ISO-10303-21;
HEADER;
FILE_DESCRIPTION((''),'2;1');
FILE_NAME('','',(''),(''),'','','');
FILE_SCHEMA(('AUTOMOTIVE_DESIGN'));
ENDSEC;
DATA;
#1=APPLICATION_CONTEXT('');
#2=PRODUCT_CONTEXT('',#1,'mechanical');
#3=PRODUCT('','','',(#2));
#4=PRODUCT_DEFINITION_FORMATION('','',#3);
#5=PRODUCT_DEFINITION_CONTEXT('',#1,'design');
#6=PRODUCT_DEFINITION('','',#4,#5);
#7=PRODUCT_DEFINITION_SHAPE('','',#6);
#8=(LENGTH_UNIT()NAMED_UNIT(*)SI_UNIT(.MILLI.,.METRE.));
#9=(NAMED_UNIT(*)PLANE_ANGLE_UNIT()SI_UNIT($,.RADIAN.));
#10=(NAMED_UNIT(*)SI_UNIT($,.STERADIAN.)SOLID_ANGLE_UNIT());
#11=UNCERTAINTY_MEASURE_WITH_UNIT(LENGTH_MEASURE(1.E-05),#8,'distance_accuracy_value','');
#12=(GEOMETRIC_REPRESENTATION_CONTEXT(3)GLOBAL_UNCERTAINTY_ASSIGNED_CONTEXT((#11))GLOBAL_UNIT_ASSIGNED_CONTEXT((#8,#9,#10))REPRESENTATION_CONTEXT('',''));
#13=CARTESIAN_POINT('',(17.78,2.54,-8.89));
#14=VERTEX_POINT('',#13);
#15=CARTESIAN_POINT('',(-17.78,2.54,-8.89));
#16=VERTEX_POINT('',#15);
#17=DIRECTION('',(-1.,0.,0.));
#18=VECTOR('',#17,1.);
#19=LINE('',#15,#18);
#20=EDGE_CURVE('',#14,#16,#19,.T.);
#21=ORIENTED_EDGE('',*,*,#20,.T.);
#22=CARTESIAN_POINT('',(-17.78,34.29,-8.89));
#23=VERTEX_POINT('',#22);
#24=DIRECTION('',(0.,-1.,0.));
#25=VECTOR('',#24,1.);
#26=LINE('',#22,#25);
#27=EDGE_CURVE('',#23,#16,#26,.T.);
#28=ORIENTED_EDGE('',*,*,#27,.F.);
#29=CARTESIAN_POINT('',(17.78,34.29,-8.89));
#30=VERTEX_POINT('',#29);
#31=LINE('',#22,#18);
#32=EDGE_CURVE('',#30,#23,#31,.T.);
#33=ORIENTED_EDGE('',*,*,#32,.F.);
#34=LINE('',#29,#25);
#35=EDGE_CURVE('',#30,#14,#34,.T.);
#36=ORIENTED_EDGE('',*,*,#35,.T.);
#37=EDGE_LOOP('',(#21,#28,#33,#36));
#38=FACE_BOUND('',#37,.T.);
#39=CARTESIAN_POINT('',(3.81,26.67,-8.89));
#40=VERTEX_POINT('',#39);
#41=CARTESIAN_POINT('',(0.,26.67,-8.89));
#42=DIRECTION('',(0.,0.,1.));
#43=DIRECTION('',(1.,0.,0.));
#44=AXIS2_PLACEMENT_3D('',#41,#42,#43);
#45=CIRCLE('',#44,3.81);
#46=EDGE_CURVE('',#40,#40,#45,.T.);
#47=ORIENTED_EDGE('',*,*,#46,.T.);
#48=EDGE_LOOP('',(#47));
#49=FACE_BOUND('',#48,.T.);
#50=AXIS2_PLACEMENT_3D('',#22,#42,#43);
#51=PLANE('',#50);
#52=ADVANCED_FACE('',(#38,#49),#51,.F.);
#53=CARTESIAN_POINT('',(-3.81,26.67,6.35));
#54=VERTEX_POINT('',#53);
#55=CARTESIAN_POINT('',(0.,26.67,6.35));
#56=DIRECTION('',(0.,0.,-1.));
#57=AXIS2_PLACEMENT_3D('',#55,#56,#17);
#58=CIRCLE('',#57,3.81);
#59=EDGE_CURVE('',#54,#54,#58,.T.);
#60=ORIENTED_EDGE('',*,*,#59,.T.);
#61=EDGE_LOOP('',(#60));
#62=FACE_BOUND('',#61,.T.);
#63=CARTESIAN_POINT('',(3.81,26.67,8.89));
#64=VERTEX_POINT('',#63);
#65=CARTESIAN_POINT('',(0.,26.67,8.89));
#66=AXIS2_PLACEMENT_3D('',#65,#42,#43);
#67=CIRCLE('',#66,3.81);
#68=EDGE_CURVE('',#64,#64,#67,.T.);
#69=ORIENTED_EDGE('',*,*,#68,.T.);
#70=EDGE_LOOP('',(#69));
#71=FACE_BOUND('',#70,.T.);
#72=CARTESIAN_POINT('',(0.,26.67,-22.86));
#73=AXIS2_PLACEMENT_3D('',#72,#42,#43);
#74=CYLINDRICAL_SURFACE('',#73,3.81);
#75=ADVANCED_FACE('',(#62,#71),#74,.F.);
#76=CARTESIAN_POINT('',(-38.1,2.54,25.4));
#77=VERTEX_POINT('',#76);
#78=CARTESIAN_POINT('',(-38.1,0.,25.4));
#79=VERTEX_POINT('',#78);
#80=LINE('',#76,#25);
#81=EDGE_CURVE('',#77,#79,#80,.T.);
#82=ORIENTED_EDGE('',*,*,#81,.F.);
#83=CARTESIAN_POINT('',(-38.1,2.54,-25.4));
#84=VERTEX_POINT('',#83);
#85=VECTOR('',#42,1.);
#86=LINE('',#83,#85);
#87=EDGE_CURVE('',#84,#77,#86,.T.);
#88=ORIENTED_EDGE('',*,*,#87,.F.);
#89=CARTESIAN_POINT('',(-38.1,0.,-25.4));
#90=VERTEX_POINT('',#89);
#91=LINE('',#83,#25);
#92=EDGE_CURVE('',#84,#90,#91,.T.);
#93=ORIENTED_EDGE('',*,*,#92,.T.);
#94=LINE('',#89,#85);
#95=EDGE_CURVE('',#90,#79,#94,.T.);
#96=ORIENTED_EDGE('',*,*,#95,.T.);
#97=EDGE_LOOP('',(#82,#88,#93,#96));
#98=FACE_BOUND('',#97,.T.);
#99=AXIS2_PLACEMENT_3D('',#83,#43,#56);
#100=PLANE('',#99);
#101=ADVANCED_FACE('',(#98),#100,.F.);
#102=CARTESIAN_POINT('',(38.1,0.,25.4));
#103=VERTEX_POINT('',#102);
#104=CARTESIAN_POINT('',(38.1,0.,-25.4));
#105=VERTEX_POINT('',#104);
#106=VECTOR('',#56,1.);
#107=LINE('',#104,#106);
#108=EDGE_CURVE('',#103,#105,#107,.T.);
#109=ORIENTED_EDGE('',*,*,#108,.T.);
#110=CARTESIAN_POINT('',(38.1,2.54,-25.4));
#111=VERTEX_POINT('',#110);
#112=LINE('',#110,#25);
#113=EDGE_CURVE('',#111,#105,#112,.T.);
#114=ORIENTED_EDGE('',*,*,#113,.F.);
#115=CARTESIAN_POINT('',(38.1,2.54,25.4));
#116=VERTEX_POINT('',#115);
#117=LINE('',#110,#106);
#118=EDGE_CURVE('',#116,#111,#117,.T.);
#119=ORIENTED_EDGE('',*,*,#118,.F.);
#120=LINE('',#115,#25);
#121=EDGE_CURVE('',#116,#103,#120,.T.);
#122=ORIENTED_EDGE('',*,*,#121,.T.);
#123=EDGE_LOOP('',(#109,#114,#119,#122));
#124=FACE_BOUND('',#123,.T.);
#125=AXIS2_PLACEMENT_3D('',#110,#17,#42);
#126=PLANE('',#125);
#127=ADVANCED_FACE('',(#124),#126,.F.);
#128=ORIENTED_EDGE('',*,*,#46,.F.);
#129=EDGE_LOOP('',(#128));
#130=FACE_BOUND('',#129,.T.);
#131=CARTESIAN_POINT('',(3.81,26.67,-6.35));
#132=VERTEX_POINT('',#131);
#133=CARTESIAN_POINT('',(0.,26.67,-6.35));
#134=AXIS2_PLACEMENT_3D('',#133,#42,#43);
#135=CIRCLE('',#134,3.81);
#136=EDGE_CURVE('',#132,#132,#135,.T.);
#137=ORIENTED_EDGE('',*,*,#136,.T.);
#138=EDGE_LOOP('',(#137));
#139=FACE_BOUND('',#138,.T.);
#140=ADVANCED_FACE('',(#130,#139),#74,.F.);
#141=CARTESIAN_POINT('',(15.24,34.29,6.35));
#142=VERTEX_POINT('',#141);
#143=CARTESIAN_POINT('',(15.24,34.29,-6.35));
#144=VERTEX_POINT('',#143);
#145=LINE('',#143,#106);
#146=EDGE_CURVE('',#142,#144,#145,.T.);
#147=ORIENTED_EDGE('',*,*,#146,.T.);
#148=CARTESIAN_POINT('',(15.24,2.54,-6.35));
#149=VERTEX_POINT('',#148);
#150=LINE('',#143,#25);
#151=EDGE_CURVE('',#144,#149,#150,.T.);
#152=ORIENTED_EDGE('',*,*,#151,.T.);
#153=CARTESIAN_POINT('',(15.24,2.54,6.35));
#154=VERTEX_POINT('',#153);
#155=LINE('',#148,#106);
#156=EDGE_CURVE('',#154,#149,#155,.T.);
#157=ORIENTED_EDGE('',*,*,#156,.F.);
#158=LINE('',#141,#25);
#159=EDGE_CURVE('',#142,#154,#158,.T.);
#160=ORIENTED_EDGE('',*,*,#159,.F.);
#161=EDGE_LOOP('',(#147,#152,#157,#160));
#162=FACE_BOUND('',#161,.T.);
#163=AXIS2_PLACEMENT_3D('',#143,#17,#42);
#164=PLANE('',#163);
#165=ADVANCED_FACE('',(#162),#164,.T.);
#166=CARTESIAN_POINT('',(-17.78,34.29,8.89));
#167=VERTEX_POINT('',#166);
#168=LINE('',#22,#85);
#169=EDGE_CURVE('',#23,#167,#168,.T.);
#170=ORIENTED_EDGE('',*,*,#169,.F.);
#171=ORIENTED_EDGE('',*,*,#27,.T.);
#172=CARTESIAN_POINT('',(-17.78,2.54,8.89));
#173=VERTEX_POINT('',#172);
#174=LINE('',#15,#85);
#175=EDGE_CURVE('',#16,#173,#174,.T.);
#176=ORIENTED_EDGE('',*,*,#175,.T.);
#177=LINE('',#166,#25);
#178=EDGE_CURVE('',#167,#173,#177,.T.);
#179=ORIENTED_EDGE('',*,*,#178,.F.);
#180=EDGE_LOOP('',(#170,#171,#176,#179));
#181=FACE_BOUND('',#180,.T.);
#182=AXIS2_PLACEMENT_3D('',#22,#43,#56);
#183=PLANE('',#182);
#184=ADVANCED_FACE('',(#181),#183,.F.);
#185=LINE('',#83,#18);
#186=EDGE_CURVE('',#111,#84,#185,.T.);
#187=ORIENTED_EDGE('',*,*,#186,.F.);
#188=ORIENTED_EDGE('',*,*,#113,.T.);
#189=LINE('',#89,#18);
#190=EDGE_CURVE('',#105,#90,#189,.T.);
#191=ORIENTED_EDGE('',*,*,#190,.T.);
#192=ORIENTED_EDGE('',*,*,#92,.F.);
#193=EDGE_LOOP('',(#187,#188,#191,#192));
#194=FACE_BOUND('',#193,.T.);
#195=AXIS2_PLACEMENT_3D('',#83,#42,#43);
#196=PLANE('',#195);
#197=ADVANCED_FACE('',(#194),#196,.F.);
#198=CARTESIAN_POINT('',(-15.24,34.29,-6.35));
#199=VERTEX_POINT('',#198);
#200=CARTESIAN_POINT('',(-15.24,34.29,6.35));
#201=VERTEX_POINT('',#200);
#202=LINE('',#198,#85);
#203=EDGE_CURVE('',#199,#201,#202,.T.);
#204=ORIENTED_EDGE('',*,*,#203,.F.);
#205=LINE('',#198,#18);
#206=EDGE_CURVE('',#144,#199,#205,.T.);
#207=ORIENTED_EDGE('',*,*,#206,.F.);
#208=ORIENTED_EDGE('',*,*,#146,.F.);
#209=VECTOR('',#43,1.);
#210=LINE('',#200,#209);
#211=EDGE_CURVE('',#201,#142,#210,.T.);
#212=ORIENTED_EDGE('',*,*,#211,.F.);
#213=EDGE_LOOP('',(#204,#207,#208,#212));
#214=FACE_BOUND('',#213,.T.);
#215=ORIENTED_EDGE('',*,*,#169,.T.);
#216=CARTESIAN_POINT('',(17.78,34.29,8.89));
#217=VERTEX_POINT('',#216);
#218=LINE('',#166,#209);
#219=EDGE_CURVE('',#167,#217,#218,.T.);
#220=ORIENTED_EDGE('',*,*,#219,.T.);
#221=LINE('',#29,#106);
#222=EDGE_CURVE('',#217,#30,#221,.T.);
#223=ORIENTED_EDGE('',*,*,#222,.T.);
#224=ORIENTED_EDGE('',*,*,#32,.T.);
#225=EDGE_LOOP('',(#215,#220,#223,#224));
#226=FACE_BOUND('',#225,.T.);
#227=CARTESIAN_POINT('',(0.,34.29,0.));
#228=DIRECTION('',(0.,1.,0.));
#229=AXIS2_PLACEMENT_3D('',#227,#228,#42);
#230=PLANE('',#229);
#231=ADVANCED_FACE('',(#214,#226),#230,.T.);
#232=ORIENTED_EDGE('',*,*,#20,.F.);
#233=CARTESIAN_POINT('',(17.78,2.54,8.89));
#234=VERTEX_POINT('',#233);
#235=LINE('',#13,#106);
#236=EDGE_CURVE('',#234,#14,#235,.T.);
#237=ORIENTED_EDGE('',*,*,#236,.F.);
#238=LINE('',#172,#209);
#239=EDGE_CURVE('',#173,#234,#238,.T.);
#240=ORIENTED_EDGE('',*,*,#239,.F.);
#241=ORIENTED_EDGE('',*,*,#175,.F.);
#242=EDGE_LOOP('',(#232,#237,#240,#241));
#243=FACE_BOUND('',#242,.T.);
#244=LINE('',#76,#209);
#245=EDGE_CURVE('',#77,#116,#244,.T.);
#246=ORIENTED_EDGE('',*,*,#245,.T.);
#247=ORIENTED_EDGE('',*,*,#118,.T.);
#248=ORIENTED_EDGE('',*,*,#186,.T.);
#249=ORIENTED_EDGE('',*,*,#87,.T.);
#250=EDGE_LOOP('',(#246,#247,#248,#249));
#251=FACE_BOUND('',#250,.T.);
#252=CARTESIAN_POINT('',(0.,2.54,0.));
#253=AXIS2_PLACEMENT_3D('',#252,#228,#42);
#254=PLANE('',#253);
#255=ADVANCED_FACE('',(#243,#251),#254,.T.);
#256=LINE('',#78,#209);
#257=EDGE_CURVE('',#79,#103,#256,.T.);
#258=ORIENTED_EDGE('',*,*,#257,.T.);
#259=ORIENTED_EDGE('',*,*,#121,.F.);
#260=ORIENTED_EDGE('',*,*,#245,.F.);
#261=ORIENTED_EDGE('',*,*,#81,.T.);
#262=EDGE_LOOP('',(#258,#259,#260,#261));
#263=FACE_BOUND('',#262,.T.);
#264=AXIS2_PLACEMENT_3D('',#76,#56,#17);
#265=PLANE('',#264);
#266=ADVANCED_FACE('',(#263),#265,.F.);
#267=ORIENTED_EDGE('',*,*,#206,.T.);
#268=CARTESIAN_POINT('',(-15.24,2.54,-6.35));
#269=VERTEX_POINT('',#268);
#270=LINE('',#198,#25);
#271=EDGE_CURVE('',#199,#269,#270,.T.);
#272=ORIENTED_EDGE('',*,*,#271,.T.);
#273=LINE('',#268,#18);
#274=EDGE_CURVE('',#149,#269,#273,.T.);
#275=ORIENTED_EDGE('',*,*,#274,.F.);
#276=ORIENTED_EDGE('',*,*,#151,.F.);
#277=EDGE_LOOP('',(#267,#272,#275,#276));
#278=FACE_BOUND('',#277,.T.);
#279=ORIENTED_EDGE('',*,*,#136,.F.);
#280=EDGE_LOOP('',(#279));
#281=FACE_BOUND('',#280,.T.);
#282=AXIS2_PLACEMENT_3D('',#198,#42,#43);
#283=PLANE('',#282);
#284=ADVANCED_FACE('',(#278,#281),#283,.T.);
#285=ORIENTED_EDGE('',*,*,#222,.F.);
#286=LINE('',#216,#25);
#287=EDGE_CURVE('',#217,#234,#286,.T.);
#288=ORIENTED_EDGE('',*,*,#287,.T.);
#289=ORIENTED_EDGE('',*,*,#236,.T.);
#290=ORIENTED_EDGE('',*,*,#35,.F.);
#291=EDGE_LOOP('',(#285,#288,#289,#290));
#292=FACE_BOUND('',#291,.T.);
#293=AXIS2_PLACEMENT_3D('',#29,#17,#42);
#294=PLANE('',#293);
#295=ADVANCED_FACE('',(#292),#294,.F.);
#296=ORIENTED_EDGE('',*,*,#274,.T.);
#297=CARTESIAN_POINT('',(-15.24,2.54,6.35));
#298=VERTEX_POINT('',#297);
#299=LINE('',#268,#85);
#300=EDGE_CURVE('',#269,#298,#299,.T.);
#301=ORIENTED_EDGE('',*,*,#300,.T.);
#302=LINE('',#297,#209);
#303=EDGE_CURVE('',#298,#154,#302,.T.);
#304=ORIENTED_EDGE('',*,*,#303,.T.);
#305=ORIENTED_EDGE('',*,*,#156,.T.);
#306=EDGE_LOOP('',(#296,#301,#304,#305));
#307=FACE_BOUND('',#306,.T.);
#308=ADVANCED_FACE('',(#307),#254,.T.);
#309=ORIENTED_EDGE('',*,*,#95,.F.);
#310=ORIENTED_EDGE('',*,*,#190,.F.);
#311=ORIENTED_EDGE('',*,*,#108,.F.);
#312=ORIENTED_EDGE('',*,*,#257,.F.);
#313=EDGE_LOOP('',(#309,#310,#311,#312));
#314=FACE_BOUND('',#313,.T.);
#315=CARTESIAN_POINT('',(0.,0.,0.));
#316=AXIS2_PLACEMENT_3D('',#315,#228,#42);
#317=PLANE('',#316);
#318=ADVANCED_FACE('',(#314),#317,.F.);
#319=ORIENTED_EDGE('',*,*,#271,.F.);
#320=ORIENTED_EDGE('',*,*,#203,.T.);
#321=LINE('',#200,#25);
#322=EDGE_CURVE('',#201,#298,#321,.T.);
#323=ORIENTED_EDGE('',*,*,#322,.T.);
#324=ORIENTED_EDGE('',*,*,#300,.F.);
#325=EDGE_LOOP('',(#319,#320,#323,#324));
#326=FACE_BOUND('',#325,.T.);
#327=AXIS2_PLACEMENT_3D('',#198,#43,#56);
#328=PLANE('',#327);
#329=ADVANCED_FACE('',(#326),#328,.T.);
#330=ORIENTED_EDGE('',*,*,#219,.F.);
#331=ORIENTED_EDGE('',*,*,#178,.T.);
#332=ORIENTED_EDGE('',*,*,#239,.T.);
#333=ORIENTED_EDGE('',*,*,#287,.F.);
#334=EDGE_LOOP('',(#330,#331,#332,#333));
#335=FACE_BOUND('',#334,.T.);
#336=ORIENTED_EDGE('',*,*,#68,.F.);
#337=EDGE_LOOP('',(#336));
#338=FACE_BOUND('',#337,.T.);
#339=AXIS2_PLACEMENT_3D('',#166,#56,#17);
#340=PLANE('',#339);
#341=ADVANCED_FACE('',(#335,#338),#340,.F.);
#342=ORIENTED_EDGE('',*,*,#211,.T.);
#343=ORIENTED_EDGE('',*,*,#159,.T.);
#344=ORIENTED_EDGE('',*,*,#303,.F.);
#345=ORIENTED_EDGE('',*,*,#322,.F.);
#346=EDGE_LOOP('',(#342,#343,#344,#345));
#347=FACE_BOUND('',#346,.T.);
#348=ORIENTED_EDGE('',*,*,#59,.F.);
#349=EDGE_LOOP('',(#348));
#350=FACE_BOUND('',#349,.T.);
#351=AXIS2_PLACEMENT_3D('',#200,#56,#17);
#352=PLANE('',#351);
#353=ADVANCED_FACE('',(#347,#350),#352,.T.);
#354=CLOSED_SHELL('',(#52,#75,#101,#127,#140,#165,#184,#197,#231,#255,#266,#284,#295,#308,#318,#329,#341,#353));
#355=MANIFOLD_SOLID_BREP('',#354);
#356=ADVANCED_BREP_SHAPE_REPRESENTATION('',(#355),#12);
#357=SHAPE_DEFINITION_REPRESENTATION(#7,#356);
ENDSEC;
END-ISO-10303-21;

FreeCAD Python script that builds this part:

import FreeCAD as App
import Part
import Sketcher
from FreeCAD import Vector
Q = App.Units.Quantity


def add_polygon(sketch, points):
    """Adds a closed chain of lines whose ends are joined by coincident constraints."""
    first, n = sketch.GeometryCount, len(points)
    for a, b in zip(points, points[1:] + points[:1]):
        sketch.addGeometry(Part.LineSegment(App.Vector(*a, 0), App.Vector(*b, 0)), False)
    for i in range(n):
        sketch.addConstraint(Sketcher.Constraint("Coincident", first + i, 2, first + (i + 1) % n, 1))

doc = App.newDocument("Part")
body = doc.addObject("PartDesign::Body", "Body")

sketch1 = body.newObject("Sketcher::SketchObject", "Sketch")
sketch1.AttachmentSupport = (doc.getObject("XZ_Plane"), [""])
sketch1.MapMode = "FlatFace"
add_polygon(sketch1, [(-38.1, -25.4), (-38.1, 25.4), (38.1, 25.4), (38.1, -25.4)])
sketch1.addConstraint(Sketcher.Constraint("Vertical", 0))
sketch1.addConstraint(Sketcher.Constraint("Horizontal", 1))
sketch1.addConstraint(Sketcher.Constraint("Vertical", 2))
sketch1.addConstraint(Sketcher.Constraint("Horizontal", 3))
sketch1.addConstraint(Sketcher.Constraint("Symmetric", 0, 2, 2, 2, -1, 1))
sketch1.addConstraint(Sketcher.Constraint("DistanceX", 1, 1, 1, 2, Q("3 in")))
sketch1.addConstraint(Sketcher.Constraint("DistanceY", 0, 1, 0, 2, Q("2 in")))
pad1 = body.newObject("PartDesign::Pad", "Pad")
pad1.Profile = sketch1
pad1.Length = Q("0.1 in")
pad1.Reversed = True

sketch2 = body.newObject("Sketcher::SketchObject", "Sketch001")
sketch2.AttachmentSupport = (doc.getObject("XZ_Plane"), [""])
sketch2.MapMode = "FlatFace"
sketch2.AttachmentOffset = App.Placement(Vector(0, 0, -0.1 * 25.4), App.Rotation())
add_polygon(sketch2, [(-17.78, -8.89), (-17.78, 8.89), (17.78, 8.89), (17.78, -8.89)])
add_polygon(sketch2, [(15.24, 6.35), (-15.24, 6.35), (-15.24, -6.35), (15.24, -6.35)])
sketch2.addConstraint(Sketcher.Constraint("Vertical", 0))
sketch2.addConstraint(Sketcher.Constraint("Horizontal", 1))
sketch2.addConstraint(Sketcher.Constraint("Vertical", 2))
sketch2.addConstraint(Sketcher.Constraint("Horizontal", 3))
sketch2.addConstraint(Sketcher.Constraint("Horizontal", 4))
sketch2.addConstraint(Sketcher.Constraint("Vertical", 5))
sketch2.addConstraint(Sketcher.Constraint("Horizontal", 6))
sketch2.addConstraint(Sketcher.Constraint("Vertical", 7))
sketch2.addConstraint(Sketcher.Constraint("Symmetric", 0, 2, 2, 2, -1, 1))
sketch2.addConstraint(Sketcher.Constraint("Symmetric", 4, 2, 6, 2, -1, 1))
sketch2.addConstraint(Sketcher.Constraint("DistanceX", 1, 1, 1, 2, Q("1.4 in")))
sketch2.addConstraint(Sketcher.Constraint("DistanceX", 4, 2, 4, 1, Q("1.2 in")))
sketch2.addConstraint(Sketcher.Constraint("DistanceY", 0, 1, 0, 2, Q("0.7 in")))
sketch2.addConstraint(Sketcher.Constraint("DistanceY", 5, 2, 5, 1, Q("0.5 in")))
pad2 = body.newObject("PartDesign::Pad", "Pad001")
pad2.Profile = sketch2
pad2.Length = Q("1.25 in")
pad2.Reversed = True

sketch3 = body.newObject("Sketcher::SketchObject", "Sketch002")
sketch3.AttachmentSupport = (doc.getObject("XY_Plane"), [""])
sketch3.MapMode = "FlatFace"
sketch3.AttachmentOffset = App.Placement(Vector(0, 0, 0.35 * 25.4), App.Rotation())
sketch3.addGeometry(Part.Circle(Vector(0, 26.67, 0), Vector(0, 0, 1), 3.81), False)
sketch3.addConstraint(Sketcher.Constraint("PointOnObject", 0, 3, -2))
sketch3.addConstraint(Sketcher.Constraint("Diameter", 0, Q("0.3 in")))
sketch3.addConstraint(Sketcher.Constraint("DistanceY", -1, 1, 0, 3, Q("1.05 in")))
pocket1 = body.newObject("PartDesign::Pocket", "Pocket")
pocket1.Profile = sketch3
pocket1.Length = Q("1.25 in")

doc.recompute()
